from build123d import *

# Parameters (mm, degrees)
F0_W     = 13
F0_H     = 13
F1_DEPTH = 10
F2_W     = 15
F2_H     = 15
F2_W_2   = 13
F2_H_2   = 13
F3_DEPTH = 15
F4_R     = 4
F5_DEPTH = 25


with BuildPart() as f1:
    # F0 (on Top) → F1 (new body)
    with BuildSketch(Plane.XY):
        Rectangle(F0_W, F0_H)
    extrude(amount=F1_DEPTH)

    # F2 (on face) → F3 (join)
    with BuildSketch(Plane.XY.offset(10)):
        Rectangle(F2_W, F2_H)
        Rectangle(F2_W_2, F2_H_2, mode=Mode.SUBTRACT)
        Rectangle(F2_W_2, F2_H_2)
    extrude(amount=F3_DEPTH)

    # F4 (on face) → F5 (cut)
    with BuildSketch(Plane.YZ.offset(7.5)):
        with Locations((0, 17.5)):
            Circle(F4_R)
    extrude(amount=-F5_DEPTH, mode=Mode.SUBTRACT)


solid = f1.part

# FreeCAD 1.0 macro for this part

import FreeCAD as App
import Part
import Sketcher

V = App.Vector

doc = App.newDocument("Part")
body = doc.addObject("PartDesign::Body", "Body")

# Sketch on XY plane
sketch1 = body.newObject("Sketcher::SketchObject", "Sketch")
sketch1.AttachmentSupport = (doc.getObject("XY_Plane"), [""])
sketch1.MapMode = "FlatFace"
sketch1.addGeometry([
    Part.LineSegment(V(-6, 6, 0), V(-6, -6, 0)),
    Part.LineSegment(V(-6, -6, 0), V(6, -6, 0)),
    Part.LineSegment(V(6, -6, 0), V(6, 6, 0)),
    Part.LineSegment(V(6, 6, 0), V(-6, 6, 0)),
], False)
sketch1.addConstraint([
    Sketcher.Constraint("Coincident", 0, 2, 1, 1),
    Sketcher.Constraint("Coincident", 1, 2, 2, 1),
    Sketcher.Constraint("Coincident", 2, 2, 3, 1),
    Sketcher.Constraint("Coincident", 3, 2, 0, 1),
    Sketcher.Constraint("Vertical", 0),
    Sketcher.Constraint("Horizontal", 1),
    Sketcher.Constraint("Vertical", 2),
    Sketcher.Constraint("Horizontal", 3),
    Sketcher.Constraint("Symmetric", 0, 2, 2, 2, -1, 1),
    Sketcher.Constraint("Equal", 3, 0),
    Sketcher.Constraint("DistanceX", 1, 1, 1, 2, 13.0),
])
pad1 = body.newObject("PartDesign::Pad", "Pad")
pad1.Profile = sketch1
pad1.Length = 10

# Sketch on XY plane
sketch2 = body.newObject("Sketcher::SketchObject", "Sketch001")
sketch2.AttachmentSupport = (doc.getObject("XY_Plane"), [""])
sketch2.MapMode = "FlatFace"
sketch2.AttachmentOffset = App.Placement(V(0, 0, 10), App.Rotation())
sketch2.addGeometry([
    Part.LineSegment(V(-8, 8, 0), V(-8, -8, 0)),
    Part.LineSegment(V(-8, -8, 0), V(8, -8, 0)),
    Part.LineSegment(V(8, -8, 0), V(8, 8, 0)),
    Part.LineSegment(V(8, 8, 0), V(-8, 8, 0)),
], False)
sketch2.addConstraint([
    Sketcher.Constraint("Coincident", 0, 2, 1, 1),
    Sketcher.Constraint("Coincident", 1, 2, 2, 1),
    Sketcher.Constraint("Coincident", 2, 2, 3, 1),
    Sketcher.Constraint("Coincident", 3, 2, 0, 1),
    Sketcher.Constraint("Vertical", 0),
    Sketcher.Constraint("Horizontal", 1),
    Sketcher.Constraint("Vertical", 2),
    Sketcher.Constraint("Horizontal", 3),
    Sketcher.Constraint("Symmetric", 0, 2, 2, 2, -1, 1),
    Sketcher.Constraint("Equal", 3, 0),
    Sketcher.Constraint("DistanceX", 1, 1, 1, 2, 15.0),
])
pad2 = body.newObject("PartDesign::Pad", "Pad001")
pad2.Profile = sketch2
pad2.Length = 15

# Sketch on YZ plane
sketch3 = body.newObject("Sketcher::SketchObject", "Sketch002")
sketch3.AttachmentSupport = (doc.getObject("YZ_Plane"), [""])
sketch3.MapMode = "FlatFace"
sketch3.AttachmentOffset = App.Placement(V(0, 0, 7.5), App.Rotation())
sketch3.addGeometry(Part.Circle(V(0, 17.5, 0), V(0, 0, 1), 4), False)
sketch3.addConstraint([
    Sketcher.Constraint("PointOnObject", 0, 3, -2),
    Sketcher.Constraint("Diameter", 0, 8.0),
    Sketcher.Constraint("DistanceY", -1, 1, 0, 3, 17.5),
])
pocket1 = body.newObject("PartDesign::Pocket", "Pocket")
pocket1.Profile = sketch3
pocket1.Length = 25

doc.recompute()
